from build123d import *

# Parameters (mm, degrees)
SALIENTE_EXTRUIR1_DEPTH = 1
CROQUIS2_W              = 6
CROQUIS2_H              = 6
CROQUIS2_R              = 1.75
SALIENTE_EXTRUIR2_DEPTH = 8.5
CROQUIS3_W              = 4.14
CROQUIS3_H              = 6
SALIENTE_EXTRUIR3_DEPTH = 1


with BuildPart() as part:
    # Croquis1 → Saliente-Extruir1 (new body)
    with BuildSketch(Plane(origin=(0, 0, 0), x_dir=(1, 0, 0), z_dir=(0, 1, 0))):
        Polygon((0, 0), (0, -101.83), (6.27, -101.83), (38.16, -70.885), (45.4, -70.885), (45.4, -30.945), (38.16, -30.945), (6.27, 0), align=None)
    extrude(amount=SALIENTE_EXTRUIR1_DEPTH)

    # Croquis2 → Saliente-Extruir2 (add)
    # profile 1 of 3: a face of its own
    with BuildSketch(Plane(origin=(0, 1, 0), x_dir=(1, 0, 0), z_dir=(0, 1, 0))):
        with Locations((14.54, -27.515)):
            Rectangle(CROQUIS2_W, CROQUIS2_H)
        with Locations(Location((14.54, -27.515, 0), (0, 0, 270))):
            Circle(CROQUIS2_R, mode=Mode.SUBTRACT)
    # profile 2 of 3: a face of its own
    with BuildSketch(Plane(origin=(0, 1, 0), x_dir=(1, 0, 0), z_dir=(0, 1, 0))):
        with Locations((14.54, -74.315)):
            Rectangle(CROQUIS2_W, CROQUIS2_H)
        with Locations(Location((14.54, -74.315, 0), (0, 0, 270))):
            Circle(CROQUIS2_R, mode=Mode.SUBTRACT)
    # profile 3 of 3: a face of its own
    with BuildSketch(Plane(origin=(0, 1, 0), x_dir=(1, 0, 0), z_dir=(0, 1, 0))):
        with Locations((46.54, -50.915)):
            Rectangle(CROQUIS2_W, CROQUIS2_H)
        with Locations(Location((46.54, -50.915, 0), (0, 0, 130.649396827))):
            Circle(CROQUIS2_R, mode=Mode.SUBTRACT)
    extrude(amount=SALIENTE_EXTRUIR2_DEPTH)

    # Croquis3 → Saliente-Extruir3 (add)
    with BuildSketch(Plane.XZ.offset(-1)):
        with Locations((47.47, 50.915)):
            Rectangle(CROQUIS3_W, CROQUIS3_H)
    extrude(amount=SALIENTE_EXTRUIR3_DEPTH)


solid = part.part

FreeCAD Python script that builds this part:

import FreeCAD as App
import Part
import Sketcher

V = App.Vector

doc = App.newDocument("Part")
body = doc.addObject("PartDesign::Body", "Body")

# Sketch on XZ plane
sketch1 = body.newObject("Sketcher::SketchObject", "Sketch")
sketch1.AttachmentSupport = (doc.getObject("XZ_Plane"), [""])
sketch1.MapMode = "FlatFace"
sketch1.addGeometry([
    Part.LineSegment(V(0, 0, 0), V(0, 102, 0)),  # 0
    Part.LineSegment(V(0, 102, 0), V(6, 102, 0)),  # 1
    Part.LineSegment(V(6, 102, 0), V(38, 71, 0)),  # 2
    Part.LineSegment(V(38, 71, 0), V(45, 71, 0)),  # 3
    Part.LineSegment(V(45, 71, 0), V(45, 31, 0)),  # 4
    Part.LineSegment(V(45, 31, 0), V(38, 31, 0)),  # 5
    Part.LineSegment(V(38, 31, 0), V(6, 0, 0)),  # 6
    Part.LineSegment(V(6, 0, 0), V(0, 0, 0)),  # 7
], False)
sketch1.addConstraint([
    Sketcher.Constraint("Coincident", 0, 2, 1, 1),
    Sketcher.Constraint("Coincident", 1, 2, 2, 1),
    Sketcher.Constraint("Coincident", 2, 2, 3, 1),
    Sketcher.Constraint("Coincident", 3, 2, 4, 1),
    Sketcher.Constraint("Coincident", 4, 2, 5, 1),
    Sketcher.Constraint("Coincident", 5, 2, 6, 1),
    Sketcher.Constraint("Coincident", 6, 2, 7, 1),
    Sketcher.Constraint("Coincident", 7, 2, 0, 1),
    Sketcher.Constraint("Vertical", 0),
    Sketcher.Constraint("Horizontal", 1),
    Sketcher.Constraint("Horizontal", 3),
    Sketcher.Constraint("Vertical", 4),
    Sketcher.Constraint("Horizontal", 5),
    Sketcher.Constraint("Horizontal", 7),
    Sketcher.Constraint("Coincident", 7, 2, -1, 1),
    Sketcher.Constraint("Vertical", 2, 2, 5, 2),
    Sketcher.Constraint("Vertical", 1, 2, 6, 2),
    Sketcher.Constraint("Equal", 2, 6),
    Sketcher.Constraint("DistanceX", 1, 1, 1, 2, 6.27),
    Sketcher.Constraint("DistanceX", 3, 1, 3, 2, 7.24),
    Sketcher.Constraint("DistanceY", 0, 1, 0, 2, 101.83),
    Sketcher.Constraint("DistanceY", 4, 2, 4, 1, 39.94),
    Sketcher.Constraint("DistanceX", -1, 1, 3, 2, 45.4),
])
pad1 = body.newObject("PartDesign::Pad", "Pad")
pad1.Profile = sketch1
pad1.Length = 1
pad1.Reversed = True

# Sketch on XZ plane
sketch2 = body.newObject("Sketcher::SketchObject", "Sketch001")
sketch2.AttachmentSupport = (doc.getObject("XZ_Plane"), [""])
sketch2.MapMode = "FlatFace"
sketch2.AttachmentOffset = App.Placement(V(0, 0, -1), App.Rotation())
sketch2.addGeometry([
    Part.LineSegment(V(11.5, 24.5, 0), V(11.5, 30.5, 0)),  # 0
    Part.LineSegment(V(11.5, 30.5, 0), V(17.5, 30.5, 0)),  # 1
    Part.LineSegment(V(17.5, 30.5, 0), V(17.5, 24.5, 0)),  # 2
    Part.LineSegment(V(17.5, 24.5, 0), V(11.5, 24.5, 0)),  # 3
    Part.Circle(V(14.5, 27.5, 0), V(0, 0, 1), 1.8),  # 4
    Part.LineSegment(V(11.5, 71.3, 0), V(11.5, 77.3, 0)),  # 5
    Part.LineSegment(V(11.5, 77.3, 0), V(17.5, 77.3, 0)),  # 6
    Part.LineSegment(V(17.5, 77.3, 0), V(17.5, 71.3, 0)),  # 7
    Part.LineSegment(V(17.5, 71.3, 0), V(11.5, 71.3, 0)),  # 8
    Part.Circle(V(14.5, 74.3, 0), V(0, 0, 1), 1.8),  # 9
    Part.LineSegment(V(43.5, 47.9, 0), V(43.5, 53.9, 0)),  # 10
    Part.LineSegment(V(43.5, 53.9, 0), V(49.5, 53.9, 0)),  # 11
    Part.LineSegment(V(49.5, 53.9, 0), V(49.5, 47.9, 0)),  # 12
    Part.LineSegment(V(49.5, 47.9, 0), V(43.5, 47.9, 0)),  # 13
    Part.Circle(V(46.5, 50.9, 0), V(0, 0, 1), 1.8),  # 14
], False)
sketch2.addConstraint([
    Sketcher.Constraint("Coincident", 0, 2, 1, 1),
    Sketcher.Constraint("Coincident", 1, 2, 2, 1),
    Sketcher.Constraint("Coincident", 2, 2, 3, 1),
    Sketcher.Constraint("Coincident", 3, 2, 0, 1),
    Sketcher.Constraint("Coincident", 5, 2, 6, 1),
    Sketcher.Constraint("Coincident", 6, 2, 7, 1),
    Sketcher.Constraint("Coincident", 7, 2, 8, 1),
    Sketcher.Constraint("Coincident", 8, 2, 5, 1),
    Sketcher.Constraint("Coincident", 10, 2, 11, 1),
    Sketcher.Constraint("Coincident", 11, 2, 12, 1),
    Sketcher.Constraint("Coincident", 12, 2, 13, 1),
    Sketcher.Constraint("Coincident", 13, 2, 10, 1),
    Sketcher.Constraint("Vertical", 0),
    Sketcher.Constraint("Horizontal", 1),
    Sketcher.Constraint("Vertical", 2),
    Sketcher.Constraint("Horizontal", 3),
    Sketcher.Constraint("Vertical", 5),
    Sketcher.Constraint("Horizontal", 6),
    Sketcher.Constraint("Vertical", 7),
    Sketcher.Constraint("Horizontal", 8),
    Sketcher.Constraint("Vertical", 10),
    Sketcher.Constraint("Horizontal", 11),
    Sketcher.Constraint("Vertical", 12),
    Sketcher.Constraint("Horizontal", 13),
    Sketcher.Constraint("Equal", 4, 9),
    Sketcher.Constraint("Equal", 9, 14),
    Sketcher.Constraint("Vertical", 4, 3, 9, 3),
    Sketcher.Constraint("Vertical", 3, 2, 5, 2),
    Sketcher.Constraint("Vertical", 2, 2, 6, 2),
    Sketcher.Constraint("Equal", 8, 11),
    Sketcher.Constraint("Equal", 13, 0),
    Sketcher.Constraint("Equal", 2, 5),
    Sketcher.Constraint("Equal", 7, 10),
    Sketcher.Constraint("Diameter", 4, 3.5),
    Sketcher.Constraint("DistanceX", 1, 1, 1, 2, 6.0),
    Sketcher.Constraint("DistanceX", 4, 3, 14, 3, 32.0),
    Sketcher.Constraint("DistanceX", 0, 2, 4, 3, 3.0),
    Sketcher.Constraint("DistanceY", 4, 3, 0, 2, 3.0),
    Sketcher.Constraint("DistanceY", 9, 3, 5, 2, 3.0),
    Sketcher.Constraint("DistanceX", 10, 2, 14, 3, 3.0),
    Sketcher.Constraint("DistanceY", 14, 3, 10, 2, 3.0),
    Sketcher.Constraint("DistanceY", 4, 3, 9, 3, 46.8),
    Sketcher.Constraint("DistanceY", 4, 3, 14, 3, 23.4),
    Sketcher.Constraint("DistanceX", -1, 1, 4, 3, 14.54),
    Sketcher.Constraint("DistanceY", -1, 1, 4, 3, 27.515),
])
pad2 = body.newObject("PartDesign::Pad", "Pad001")
pad2.Profile = sketch2
pad2.Length = 8.5
pad2.Reversed = True

# Sketch on XZ plane
sketch3 = body.newObject("Sketcher::SketchObject", "Sketch002")
sketch3.AttachmentSupport = (doc.getObject("XZ_Plane"), [""])
sketch3.MapMode = "FlatFace"
sketch3.AttachmentOffset = App.Placement(V(0, 0, -1), App.Rotation())
sketch3.addGeometry([
    Part.LineSegment(V(45.4, 53.9, 0), V(45.4, 47.9, 0)),
    Part.LineSegment(V(45.4, 47.9, 0), V(49.5, 47.9, 0)),
    Part.LineSegment(V(49.5, 47.9, 0), V(49.5, 53.9, 0)),
    Part.LineSegment(V(49.5, 53.9, 0), V(45.4, 53.9, 0)),
], False)
sketch3.addConstraint([
    Sketcher.Constraint("Coincident", 0, 2, 1, 1),
    Sketcher.Constraint("Coincident", 1, 2, 2, 1),
    Sketcher.Constraint("Coincident", 2, 2, 3, 1),
    Sketcher.Constraint("Coincident", 3, 2, 0, 1),
    Sketcher.Constraint("Vertical", 0),
    Sketcher.Constraint("Horizontal", 1),
    Sketcher.Constraint("Vertical", 2),
    Sketcher.Constraint("Horizontal", 3),
    Sketcher.Constraint("DistanceY", 0, 2, 0, 1, 6.0),
    Sketcher.Constraint("DistanceX", 1, 1, 1, 2, 4.14),
    Sketcher.Constraint("DistanceX", -1, 1, 0, 2, 45.4),
    Sketcher.Constraint("DistanceY", -1, 1, 0, 2, 47.915),
])
pad3 = body.newObject("PartDesign::Pad", "Pad002")
pad3.Profile = sketch3
pad3.Length = 1

doc.recompute()
